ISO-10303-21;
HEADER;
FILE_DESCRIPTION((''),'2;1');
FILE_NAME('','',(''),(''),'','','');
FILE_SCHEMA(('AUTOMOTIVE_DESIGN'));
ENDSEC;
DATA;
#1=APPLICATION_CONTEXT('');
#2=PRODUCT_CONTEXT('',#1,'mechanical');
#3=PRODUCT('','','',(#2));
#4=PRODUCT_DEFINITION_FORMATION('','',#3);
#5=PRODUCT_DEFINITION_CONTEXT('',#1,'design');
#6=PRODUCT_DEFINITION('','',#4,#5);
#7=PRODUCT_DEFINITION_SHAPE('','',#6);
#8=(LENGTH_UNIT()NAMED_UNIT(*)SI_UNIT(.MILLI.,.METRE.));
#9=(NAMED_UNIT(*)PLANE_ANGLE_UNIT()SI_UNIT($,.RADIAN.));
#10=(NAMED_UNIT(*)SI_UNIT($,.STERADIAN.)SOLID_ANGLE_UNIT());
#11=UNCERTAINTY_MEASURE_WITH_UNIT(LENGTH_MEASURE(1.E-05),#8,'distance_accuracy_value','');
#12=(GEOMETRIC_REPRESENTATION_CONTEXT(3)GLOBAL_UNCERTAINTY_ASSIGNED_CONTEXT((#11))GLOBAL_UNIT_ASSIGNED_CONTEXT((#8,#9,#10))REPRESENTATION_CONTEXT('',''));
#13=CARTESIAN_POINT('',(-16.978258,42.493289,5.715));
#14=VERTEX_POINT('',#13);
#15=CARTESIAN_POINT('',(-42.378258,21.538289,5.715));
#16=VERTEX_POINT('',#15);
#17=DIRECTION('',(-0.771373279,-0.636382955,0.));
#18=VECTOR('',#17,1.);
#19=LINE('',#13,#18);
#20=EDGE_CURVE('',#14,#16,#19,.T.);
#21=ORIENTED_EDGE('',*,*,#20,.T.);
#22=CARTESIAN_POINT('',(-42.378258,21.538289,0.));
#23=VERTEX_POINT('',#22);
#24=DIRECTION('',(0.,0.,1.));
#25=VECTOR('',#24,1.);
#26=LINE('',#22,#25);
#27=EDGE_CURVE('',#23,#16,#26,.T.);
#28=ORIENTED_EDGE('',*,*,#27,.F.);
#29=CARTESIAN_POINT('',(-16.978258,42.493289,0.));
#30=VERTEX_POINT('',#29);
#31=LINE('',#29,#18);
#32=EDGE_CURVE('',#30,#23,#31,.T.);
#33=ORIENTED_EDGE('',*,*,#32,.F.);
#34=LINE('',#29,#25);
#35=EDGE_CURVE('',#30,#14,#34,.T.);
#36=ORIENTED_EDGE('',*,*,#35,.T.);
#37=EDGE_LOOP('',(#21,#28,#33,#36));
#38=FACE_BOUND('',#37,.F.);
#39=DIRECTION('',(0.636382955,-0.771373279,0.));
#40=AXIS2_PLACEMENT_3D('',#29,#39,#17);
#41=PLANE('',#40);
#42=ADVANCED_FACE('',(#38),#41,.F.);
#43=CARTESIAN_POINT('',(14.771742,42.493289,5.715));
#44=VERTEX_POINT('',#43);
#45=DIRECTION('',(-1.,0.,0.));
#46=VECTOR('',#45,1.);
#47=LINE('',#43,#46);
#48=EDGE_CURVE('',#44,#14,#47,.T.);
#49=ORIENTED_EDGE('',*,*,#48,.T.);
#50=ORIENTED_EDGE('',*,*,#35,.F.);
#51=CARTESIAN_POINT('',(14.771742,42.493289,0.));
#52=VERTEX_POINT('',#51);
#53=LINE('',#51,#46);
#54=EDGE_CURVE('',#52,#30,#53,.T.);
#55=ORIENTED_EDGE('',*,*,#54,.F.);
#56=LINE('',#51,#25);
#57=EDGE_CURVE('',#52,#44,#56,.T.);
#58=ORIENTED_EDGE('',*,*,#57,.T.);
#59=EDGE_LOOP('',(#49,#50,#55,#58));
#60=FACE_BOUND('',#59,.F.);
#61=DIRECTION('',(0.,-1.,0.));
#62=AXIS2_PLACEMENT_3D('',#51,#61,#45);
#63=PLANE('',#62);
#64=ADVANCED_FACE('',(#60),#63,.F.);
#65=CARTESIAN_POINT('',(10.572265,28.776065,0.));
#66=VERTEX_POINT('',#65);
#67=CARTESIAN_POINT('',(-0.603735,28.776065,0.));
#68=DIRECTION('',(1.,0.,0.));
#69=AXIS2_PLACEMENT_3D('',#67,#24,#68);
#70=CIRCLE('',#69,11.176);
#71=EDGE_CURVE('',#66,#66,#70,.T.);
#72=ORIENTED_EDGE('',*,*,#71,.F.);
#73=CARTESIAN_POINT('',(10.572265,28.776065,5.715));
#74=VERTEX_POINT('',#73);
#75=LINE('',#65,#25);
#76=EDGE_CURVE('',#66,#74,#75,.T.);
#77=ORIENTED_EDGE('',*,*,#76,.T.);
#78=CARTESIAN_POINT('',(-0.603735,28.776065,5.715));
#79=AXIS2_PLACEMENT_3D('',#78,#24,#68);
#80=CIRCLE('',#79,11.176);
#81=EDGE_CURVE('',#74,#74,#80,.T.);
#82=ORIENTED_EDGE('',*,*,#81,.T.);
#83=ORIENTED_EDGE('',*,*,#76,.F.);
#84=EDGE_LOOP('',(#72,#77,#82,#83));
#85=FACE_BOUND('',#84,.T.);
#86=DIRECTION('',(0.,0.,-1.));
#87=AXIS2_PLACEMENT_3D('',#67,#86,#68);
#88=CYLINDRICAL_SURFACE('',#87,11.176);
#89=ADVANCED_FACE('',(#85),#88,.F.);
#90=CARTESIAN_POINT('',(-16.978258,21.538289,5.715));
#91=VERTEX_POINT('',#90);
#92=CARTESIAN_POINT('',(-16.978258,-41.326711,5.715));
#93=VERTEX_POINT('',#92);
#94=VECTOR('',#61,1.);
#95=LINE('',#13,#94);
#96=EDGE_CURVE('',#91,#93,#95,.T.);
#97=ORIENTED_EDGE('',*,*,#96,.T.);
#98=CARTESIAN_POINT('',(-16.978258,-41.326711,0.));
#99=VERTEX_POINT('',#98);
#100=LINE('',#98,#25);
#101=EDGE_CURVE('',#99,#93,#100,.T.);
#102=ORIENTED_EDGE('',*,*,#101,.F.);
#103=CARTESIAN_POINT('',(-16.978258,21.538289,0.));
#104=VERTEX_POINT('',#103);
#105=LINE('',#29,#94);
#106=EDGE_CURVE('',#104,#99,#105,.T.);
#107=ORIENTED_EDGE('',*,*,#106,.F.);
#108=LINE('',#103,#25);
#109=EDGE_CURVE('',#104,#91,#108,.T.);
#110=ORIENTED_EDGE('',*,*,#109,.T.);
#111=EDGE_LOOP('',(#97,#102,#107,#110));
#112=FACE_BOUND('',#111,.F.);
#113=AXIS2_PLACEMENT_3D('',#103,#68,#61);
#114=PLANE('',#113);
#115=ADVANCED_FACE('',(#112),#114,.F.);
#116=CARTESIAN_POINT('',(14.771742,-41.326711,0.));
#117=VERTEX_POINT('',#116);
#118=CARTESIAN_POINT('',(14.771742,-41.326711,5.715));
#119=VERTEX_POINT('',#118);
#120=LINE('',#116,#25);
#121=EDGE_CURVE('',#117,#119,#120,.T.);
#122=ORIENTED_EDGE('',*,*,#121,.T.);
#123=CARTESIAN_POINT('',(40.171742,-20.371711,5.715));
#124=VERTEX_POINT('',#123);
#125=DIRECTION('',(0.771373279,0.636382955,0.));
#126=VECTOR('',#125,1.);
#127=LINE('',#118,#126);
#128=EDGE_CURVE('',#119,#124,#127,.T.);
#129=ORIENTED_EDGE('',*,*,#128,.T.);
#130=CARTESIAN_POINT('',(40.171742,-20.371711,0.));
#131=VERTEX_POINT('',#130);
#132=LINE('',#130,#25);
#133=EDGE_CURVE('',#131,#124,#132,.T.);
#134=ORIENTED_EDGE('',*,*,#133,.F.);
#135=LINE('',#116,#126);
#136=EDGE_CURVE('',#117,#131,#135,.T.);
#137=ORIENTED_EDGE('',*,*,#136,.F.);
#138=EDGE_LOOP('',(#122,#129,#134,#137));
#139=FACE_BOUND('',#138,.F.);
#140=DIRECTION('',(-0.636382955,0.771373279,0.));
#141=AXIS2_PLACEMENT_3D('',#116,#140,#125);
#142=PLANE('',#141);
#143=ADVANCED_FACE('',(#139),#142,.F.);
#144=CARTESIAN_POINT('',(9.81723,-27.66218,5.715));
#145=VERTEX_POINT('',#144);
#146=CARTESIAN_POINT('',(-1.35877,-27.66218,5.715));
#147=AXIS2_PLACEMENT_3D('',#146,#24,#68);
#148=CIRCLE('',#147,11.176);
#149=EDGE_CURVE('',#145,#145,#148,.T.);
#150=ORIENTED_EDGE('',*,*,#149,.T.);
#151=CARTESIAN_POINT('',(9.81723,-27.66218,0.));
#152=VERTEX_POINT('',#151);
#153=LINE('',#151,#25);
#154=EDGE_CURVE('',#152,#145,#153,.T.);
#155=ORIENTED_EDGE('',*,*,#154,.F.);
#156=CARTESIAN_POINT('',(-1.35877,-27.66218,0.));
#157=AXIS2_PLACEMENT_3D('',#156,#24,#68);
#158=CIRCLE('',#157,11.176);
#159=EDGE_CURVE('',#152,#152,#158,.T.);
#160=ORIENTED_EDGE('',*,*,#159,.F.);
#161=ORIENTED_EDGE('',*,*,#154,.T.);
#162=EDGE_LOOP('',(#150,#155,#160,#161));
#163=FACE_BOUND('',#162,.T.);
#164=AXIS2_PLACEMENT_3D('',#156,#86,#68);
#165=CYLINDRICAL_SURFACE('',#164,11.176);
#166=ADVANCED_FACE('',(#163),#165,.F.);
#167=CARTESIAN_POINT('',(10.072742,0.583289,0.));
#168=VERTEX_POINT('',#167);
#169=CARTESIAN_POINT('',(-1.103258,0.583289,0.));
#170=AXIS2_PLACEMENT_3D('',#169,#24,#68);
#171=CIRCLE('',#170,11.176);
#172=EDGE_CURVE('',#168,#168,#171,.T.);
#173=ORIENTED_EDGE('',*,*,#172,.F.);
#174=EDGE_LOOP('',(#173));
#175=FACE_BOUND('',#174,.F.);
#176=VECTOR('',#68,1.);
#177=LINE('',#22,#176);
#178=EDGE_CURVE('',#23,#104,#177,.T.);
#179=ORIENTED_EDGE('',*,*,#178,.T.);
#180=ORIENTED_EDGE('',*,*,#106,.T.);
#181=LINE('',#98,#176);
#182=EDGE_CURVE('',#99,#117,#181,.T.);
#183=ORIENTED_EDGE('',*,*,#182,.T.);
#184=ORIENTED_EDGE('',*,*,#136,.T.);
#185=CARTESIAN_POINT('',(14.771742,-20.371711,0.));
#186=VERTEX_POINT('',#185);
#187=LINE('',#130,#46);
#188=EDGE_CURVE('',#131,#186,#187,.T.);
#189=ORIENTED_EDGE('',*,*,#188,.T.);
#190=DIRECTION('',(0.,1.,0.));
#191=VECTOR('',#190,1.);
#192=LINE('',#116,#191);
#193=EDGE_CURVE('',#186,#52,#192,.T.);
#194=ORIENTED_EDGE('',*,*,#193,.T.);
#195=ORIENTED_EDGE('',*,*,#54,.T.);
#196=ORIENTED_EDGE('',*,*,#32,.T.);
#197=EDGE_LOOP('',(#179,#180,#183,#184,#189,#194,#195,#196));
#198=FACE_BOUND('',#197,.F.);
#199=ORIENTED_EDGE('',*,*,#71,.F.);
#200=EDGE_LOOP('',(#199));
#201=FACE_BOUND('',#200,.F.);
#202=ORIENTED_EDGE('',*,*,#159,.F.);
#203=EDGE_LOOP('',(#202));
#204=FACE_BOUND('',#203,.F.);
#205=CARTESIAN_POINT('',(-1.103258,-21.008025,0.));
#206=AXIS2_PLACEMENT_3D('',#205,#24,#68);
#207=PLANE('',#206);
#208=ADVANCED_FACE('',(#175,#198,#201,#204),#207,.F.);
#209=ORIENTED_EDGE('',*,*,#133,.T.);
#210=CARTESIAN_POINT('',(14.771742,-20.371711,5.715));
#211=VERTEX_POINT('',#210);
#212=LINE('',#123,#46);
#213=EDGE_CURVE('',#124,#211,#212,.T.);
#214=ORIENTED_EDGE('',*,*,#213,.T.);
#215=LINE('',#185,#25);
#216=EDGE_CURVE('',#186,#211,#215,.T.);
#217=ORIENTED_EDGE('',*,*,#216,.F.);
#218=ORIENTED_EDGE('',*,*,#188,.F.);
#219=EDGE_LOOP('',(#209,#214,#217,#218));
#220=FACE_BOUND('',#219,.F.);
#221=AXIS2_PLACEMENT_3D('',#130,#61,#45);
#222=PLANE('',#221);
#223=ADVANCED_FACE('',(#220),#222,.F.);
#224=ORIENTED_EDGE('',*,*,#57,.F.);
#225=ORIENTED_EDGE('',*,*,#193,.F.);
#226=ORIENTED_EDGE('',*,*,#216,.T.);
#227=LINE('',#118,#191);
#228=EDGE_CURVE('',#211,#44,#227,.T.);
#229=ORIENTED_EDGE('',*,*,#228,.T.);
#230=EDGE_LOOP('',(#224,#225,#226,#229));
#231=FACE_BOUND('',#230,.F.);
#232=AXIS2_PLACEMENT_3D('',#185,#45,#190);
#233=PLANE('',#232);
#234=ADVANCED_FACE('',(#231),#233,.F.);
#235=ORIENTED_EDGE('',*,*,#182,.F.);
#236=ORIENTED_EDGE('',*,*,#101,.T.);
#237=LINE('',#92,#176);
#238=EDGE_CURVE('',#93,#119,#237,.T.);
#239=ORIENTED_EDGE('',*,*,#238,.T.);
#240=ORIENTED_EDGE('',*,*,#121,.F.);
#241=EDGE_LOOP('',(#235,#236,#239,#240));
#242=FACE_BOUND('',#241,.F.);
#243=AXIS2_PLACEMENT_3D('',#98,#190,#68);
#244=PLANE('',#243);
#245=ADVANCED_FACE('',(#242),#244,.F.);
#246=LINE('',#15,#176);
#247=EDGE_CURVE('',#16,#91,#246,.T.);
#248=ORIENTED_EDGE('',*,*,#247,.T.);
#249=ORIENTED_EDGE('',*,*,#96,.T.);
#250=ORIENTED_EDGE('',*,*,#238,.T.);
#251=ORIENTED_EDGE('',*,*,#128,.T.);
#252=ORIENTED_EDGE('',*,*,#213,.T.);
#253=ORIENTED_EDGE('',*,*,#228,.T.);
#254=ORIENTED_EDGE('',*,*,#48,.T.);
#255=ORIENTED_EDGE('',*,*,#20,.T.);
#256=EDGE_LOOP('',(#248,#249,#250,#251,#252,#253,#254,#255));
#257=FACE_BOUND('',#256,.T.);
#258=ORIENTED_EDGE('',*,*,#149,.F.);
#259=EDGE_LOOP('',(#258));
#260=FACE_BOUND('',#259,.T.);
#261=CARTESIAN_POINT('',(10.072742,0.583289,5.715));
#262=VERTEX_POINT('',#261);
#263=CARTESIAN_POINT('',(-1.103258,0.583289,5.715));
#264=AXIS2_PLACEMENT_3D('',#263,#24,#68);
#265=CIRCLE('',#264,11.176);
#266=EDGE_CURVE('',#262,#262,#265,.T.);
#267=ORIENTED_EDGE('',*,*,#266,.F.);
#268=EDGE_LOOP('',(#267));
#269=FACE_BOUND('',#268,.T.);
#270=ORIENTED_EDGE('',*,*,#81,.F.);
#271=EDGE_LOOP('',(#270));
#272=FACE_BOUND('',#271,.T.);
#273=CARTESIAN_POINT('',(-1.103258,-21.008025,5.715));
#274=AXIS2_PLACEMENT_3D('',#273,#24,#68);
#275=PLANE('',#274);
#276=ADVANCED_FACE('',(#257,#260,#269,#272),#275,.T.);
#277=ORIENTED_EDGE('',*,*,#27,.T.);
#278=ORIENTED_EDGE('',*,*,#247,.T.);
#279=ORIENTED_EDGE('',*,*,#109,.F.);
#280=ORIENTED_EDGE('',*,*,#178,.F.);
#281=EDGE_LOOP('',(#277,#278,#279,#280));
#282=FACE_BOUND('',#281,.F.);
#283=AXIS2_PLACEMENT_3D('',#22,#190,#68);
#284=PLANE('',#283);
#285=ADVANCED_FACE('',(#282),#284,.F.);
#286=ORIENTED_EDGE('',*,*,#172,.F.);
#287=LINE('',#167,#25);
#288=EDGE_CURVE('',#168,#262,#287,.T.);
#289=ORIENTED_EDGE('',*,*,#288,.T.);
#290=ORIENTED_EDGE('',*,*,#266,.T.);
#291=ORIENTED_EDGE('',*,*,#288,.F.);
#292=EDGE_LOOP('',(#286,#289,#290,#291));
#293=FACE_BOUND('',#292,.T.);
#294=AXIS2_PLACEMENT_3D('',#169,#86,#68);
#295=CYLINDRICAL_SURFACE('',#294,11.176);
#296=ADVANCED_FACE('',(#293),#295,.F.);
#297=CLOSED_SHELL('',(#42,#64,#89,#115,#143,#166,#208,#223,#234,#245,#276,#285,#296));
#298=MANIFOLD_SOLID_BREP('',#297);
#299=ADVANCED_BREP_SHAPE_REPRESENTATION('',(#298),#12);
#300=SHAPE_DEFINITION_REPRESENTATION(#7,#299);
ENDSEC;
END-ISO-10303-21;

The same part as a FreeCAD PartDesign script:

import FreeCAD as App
import Part
import Sketcher
Q = App.Units.Quantity


def add_polygon(sketch, points):
    """Adds a closed chain of lines whose ends are joined by coincident constraints."""
    first, n = sketch.GeometryCount, len(points)
    for a, b in zip(points, points[1:] + points[:1]):
        sketch.addGeometry(Part.LineSegment(App.Vector(*a, 0), App.Vector(*b, 0)), False)
    for i in range(n):
        sketch.addConstraint(Sketcher.Constraint("Coincident", first + i, 2, first + (i + 1) % n, 1))

doc = App.newDocument("Part")
body = doc.addObject("PartDesign::Body", "Body")

sketch1 = doc.addObject("Sketcher::SketchObject", "Sketch")
body.addObject(sketch1)
sketch1.AttachmentSupport = (doc.XY_Plane, [""])
sketch1.MapMode = "FlatFace"
add_polygon(sketch1, [(15, -20), (15, 42), (-17, 42), (-42, 22), (-17, 22), (-17, -41), (15, -41), (40, -20)])
sketch1.addGeometry(Part.Circle(App.Vector(-1, -28, 0), App.Vector(0, 0, 1), 11), False)
sketch1.addGeometry(Part.Circle(App.Vector(-1, 1, 0), App.Vector(0, 0, 1), 11), False)
sketch1.addGeometry(Part.Circle(App.Vector(-1, 29, 0), App.Vector(0, 0, 1), 11), False)
sketch1.addConstraint(Sketcher.Constraint("Vertical", 0))
sketch1.addConstraint(Sketcher.Constraint("Horizontal", 1))
sketch1.addConstraint(Sketcher.Constraint("Horizontal", 3))
sketch1.addConstraint(Sketcher.Constraint("Vertical", 4))
sketch1.addConstraint(Sketcher.Constraint("Horizontal", 5))
sketch1.addConstraint(Sketcher.Constraint("Horizontal", 7))
sketch1.addConstraint(Sketcher.Constraint("Equal", 8, 9))
sketch1.addConstraint(Sketcher.Constraint("Equal", 9, 10))
sketch1.addConstraint(Sketcher.Constraint("Parallel", 2, 6))
sketch1.addConstraint(Sketcher.Constraint("Vertical", 1, 2, 3, 2))
sketch1.addConstraint(Sketcher.Constraint("Vertical", 0, 2, 5, 2))
sketch1.addConstraint(Sketcher.Constraint("Equal", 3, 7))
sketch1.addConstraint(Sketcher.Constraint("Diameter", 8, Q("0.88 in")))
sketch1.addConstraint(Sketcher.Constraint("DistanceX", 3, 1, 3, 2, Q("1 in")))
sketch1.addConstraint(Sketcher.Constraint("DistanceX", 1, 2, 1, 1, Q("1.25 in")))
sketch1.addConstraint(Sketcher.Constraint("DistanceY", 0, 1, 0, 2, Q("2.475 in")))
sketch1.addConstraint(Sketcher.Constraint("DistanceY", 9, 3, 0, 2, Q("1.65 in")))
sketch1.addConstraint(Sketcher.Constraint("DistanceY", 4, 2, 9, 3, Q("1.65 in")))
sketch1.addConstraint(Sketcher.Constraint("DistanceX", 9, 3, 0, 2, Q("0.625 in")))
sketch1.addConstraint(Sketcher.Constraint("DistanceX", 8, 3, -1, 1, 1.35877))
sketch1.addConstraint(Sketcher.Constraint("DistanceY", 8, 3, -1, 1, 27.66218))
sketch1.addConstraint(Sketcher.Constraint("DistanceX", 9, 3, -1, 1, 1.103258))
sketch1.addConstraint(Sketcher.Constraint("DistanceY", -1, 1, 9, 3, 0.583289))
sketch1.addConstraint(Sketcher.Constraint("DistanceX", 10, 3, -1, 1, 0.603735))
sketch1.addConstraint(Sketcher.Constraint("DistanceY", -1, 1, 10, 3, 28.776065))
pad1 = doc.addObject("PartDesign::Pad", "Pad")
body.addObject(pad1)
pad1.Profile = sketch1
pad1.Length = Q("0.225 in")

doc.recompute()
